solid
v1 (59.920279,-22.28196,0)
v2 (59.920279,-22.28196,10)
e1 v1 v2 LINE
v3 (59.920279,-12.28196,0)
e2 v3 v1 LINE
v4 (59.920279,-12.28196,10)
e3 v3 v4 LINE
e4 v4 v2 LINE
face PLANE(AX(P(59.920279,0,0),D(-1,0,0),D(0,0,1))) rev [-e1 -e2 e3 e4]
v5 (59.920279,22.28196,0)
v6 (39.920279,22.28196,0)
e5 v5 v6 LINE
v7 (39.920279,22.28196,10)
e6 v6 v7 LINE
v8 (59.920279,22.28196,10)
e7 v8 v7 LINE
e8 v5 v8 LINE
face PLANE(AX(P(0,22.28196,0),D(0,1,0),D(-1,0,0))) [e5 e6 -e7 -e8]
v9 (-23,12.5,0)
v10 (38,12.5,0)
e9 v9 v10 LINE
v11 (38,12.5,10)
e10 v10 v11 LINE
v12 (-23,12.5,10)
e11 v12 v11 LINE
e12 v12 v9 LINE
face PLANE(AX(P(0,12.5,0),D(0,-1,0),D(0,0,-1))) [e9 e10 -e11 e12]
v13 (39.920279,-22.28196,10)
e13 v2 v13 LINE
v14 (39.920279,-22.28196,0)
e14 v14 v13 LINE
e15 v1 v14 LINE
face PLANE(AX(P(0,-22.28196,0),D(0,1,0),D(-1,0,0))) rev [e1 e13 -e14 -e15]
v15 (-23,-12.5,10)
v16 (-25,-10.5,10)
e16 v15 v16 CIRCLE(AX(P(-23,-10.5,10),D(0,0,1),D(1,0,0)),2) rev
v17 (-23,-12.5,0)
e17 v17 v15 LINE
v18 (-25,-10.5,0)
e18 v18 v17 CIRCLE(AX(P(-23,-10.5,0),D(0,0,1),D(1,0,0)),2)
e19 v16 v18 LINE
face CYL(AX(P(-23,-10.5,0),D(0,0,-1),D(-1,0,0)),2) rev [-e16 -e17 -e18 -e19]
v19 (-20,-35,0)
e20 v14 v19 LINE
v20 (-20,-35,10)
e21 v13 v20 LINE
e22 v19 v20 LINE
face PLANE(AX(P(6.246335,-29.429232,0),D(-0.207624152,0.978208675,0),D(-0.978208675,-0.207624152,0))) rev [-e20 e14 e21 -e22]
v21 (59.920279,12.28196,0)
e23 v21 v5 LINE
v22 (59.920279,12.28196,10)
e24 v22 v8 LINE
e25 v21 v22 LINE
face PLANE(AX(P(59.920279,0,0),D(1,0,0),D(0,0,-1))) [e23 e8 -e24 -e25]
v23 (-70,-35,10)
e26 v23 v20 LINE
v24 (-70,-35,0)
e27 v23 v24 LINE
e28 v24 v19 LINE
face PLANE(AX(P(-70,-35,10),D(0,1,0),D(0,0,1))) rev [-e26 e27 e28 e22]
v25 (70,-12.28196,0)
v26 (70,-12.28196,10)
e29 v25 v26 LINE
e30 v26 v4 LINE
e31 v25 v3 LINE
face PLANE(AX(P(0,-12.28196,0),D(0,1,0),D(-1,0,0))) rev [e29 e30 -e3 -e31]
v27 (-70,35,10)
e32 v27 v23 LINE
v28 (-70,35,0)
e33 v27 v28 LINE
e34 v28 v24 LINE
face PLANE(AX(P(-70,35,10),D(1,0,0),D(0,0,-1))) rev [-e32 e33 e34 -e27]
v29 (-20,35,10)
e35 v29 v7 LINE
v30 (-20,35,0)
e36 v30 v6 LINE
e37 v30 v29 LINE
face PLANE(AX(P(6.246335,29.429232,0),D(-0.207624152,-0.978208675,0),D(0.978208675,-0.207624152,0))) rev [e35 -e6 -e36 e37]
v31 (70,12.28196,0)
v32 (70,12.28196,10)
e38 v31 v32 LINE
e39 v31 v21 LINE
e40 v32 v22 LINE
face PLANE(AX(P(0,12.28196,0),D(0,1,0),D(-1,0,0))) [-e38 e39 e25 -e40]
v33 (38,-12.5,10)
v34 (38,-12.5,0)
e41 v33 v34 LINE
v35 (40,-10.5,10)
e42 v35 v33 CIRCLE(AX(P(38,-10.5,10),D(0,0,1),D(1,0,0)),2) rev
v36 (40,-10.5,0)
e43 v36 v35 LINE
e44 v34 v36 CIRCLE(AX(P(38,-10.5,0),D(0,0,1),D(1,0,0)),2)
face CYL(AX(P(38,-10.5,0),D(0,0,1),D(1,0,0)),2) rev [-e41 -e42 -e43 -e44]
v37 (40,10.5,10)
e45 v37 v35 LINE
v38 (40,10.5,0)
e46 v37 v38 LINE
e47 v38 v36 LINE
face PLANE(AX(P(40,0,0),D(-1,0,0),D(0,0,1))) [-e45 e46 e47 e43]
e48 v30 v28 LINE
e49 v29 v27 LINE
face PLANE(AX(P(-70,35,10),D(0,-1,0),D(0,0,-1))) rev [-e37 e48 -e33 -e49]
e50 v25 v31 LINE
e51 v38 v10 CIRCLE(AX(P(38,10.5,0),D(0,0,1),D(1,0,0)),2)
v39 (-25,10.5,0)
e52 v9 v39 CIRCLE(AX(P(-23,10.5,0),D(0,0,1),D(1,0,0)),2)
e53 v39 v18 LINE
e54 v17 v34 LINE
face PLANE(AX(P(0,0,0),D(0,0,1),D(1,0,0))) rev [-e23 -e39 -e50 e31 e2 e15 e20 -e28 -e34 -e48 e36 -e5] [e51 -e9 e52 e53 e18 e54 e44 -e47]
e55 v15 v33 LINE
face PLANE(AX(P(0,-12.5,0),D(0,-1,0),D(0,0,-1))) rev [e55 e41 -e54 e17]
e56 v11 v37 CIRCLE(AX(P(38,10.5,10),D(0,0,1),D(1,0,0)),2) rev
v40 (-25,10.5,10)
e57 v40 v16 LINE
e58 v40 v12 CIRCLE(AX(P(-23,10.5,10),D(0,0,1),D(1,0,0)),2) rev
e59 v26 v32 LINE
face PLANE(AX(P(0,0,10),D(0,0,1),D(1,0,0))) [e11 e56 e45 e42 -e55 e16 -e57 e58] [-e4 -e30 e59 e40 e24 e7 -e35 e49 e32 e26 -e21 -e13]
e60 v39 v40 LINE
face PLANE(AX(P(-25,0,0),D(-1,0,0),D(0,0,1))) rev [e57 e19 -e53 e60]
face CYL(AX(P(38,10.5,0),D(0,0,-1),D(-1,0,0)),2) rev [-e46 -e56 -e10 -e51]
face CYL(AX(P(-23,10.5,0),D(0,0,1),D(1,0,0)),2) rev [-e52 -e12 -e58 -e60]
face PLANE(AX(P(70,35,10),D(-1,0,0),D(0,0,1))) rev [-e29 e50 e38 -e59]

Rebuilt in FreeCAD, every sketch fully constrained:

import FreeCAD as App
import Part
import Sketcher

V = App.Vector


def edges_at(feature, points):
    """Names of the edges that pass closest to the given points."""
    edges = feature.Shape.Edges
    near = lambda p: min(range(len(edges)), key=lambda i: edges[i].distToShape(Part.Vertex(*p))[0])
    return sorted({f"Edge{near(p) + 1}" for p in points})


def add_polygon(sketch, points):
    """Adds a closed chain of lines whose ends are joined by coincident constraints."""
    first, n = sketch.GeometryCount, len(points)
    for a, b in zip(points, points[1:] + points[:1]):
        sketch.addGeometry(Part.LineSegment(App.Vector(*a, 0), App.Vector(*b, 0)), False)
    for i in range(n):
        sketch.addConstraint(Sketcher.Constraint("Coincident", first + i, 2, first + (i + 1) % n, 1))

doc = App.newDocument("Part")
body = doc.addObject("PartDesign::Body", "Body")

# Sketch on XY plane
sketch1 = body.newObject("Sketcher::SketchObject", "Sketch")
sketch1.AttachmentSupport = (doc.getObject("XY_Plane"), [""])
sketch1.MapMode = "FlatFace"
add_polygon(sketch1, [(-70, 35), (-70, -35), (70, -35), (70, 35)])  # lines 0-3
sketch1.addConstraint([
    Sketcher.Constraint("Vertical", 0),
    Sketcher.Constraint("Horizontal", 1),
    Sketcher.Constraint("Vertical", 2),
    Sketcher.Constraint("Horizontal", 3),
    Sketcher.Constraint("Symmetric", 0, 2, 2, 2, -1, 1),
    Sketcher.Constraint("DistanceX", 1, 1, 1, 2, 140.0),
    Sketcher.Constraint("DistanceY", 0, 2, 0, 1, 70.0),
])
pad1 = body.newObject("PartDesign::Pad", "Pad")
pad1.Profile = sketch1
pad1.Length = 10

# Sketch on XY plane
sketch2 = body.newObject("Sketcher::SketchObject", "Sketch001")
sketch2.AttachmentSupport = (doc.getObject("XY_Plane"), [""])
sketch2.MapMode = "FlatFace"
sketch2.AttachmentOffset = App.Placement(V(0, 0, 10), App.Rotation())
add_polygon(sketch2, [(40, 22), (60, 22), (60, 12), (70, 12), (70, 22), (70, 35), (-20, 35)])  # lines 0-6
add_polygon(sketch2, [(60, -12), (60, -22), (40, -22), (-20, -35), (70, -35), (70, -22), (70, -12)])  # lines 7-13
add_polygon(sketch2, [(40, -12), (40, 12), (-25, 12), (-25, -12)])  # lines 14-17
sketch2.addConstraint([
    Sketcher.Constraint("Horizontal", 0),
    Sketcher.Constraint("Vertical", 1),
    Sketcher.Constraint("Horizontal", 2),
    Sketcher.Constraint("Vertical", 3),
    Sketcher.Constraint("Vertical", 4),
    Sketcher.Constraint("Horizontal", 5),
    Sketcher.Constraint("Vertical", 7),
    Sketcher.Constraint("Horizontal", 8),
    Sketcher.Constraint("Horizontal", 10),
    Sketcher.Constraint("Vertical", 11),
    Sketcher.Constraint("Vertical", 12),
    Sketcher.Constraint("Horizontal", 13),
    Sketcher.Constraint("Vertical", 14),
    Sketcher.Constraint("Horizontal", 15),
    Sketcher.Constraint("Vertical", 16),
    Sketcher.Constraint("Horizontal", 17),
    Sketcher.Constraint("Symmetric", 0, 2, 7, 2, -1),
    Sketcher.Constraint("Symmetric", 5, 2, 9, 2, -1),
    Sketcher.Constraint("Symmetric", 3, 2, 11, 2, -1),
    Sketcher.Constraint("Horizontal", 0, 2, 3, 2),
    Sketcher.Constraint("Vertical", 6, 2, 8, 2),
    Sketcher.Constraint("Equal", 3, 7),
    Sketcher.Constraint("DistanceX", 0, 1, 0, 2, 20.0),
    Sketcher.Constraint("DistanceX", 5, 2, 5, 1, 90.0),
    Sketcher.Constraint("DistanceX", 15, 2, 15, 1, 65.0),
    Sketcher.Constraint("DistanceY", 1, 2, 1, 1, 10.0),
    Sketcher.Constraint("DistanceY", 14, 1, 14, 2, 25.0),
    Sketcher.Constraint("DistanceX", -1, 1, 2, 2, 70.0),
    Sketcher.Constraint("DistanceY", -1, 1, 4, 2, 35.0),
    Sketcher.Constraint("DistanceX", -1, 1, 14, 2, 40.0),
    Sketcher.Constraint("DistanceY", -1, 1, 14, 2, 12.5),
    Sketcher.Constraint("DistanceX", 2, 1, 2, 2, 10.079721),
    Sketcher.Constraint("DistanceY", 4, 1, 4, 2, 12.71804),
])
pocket1 = body.newObject("PartDesign::Pocket", "Pocket")
pocket1.Profile = sketch2
pocket1.Length = 10
doc.recompute()

fillet = body.newObject("PartDesign::Fillet", "Fillet")
fillet.Base = (pocket1, edges_at(pocket1, [
    (40, -12.5, 5),
    (-25, -12.5, 5),
    (-25, 12.5, 5),
    (40, 12.5, 5),
]))
fillet.Radius = 2

doc.recompute()
